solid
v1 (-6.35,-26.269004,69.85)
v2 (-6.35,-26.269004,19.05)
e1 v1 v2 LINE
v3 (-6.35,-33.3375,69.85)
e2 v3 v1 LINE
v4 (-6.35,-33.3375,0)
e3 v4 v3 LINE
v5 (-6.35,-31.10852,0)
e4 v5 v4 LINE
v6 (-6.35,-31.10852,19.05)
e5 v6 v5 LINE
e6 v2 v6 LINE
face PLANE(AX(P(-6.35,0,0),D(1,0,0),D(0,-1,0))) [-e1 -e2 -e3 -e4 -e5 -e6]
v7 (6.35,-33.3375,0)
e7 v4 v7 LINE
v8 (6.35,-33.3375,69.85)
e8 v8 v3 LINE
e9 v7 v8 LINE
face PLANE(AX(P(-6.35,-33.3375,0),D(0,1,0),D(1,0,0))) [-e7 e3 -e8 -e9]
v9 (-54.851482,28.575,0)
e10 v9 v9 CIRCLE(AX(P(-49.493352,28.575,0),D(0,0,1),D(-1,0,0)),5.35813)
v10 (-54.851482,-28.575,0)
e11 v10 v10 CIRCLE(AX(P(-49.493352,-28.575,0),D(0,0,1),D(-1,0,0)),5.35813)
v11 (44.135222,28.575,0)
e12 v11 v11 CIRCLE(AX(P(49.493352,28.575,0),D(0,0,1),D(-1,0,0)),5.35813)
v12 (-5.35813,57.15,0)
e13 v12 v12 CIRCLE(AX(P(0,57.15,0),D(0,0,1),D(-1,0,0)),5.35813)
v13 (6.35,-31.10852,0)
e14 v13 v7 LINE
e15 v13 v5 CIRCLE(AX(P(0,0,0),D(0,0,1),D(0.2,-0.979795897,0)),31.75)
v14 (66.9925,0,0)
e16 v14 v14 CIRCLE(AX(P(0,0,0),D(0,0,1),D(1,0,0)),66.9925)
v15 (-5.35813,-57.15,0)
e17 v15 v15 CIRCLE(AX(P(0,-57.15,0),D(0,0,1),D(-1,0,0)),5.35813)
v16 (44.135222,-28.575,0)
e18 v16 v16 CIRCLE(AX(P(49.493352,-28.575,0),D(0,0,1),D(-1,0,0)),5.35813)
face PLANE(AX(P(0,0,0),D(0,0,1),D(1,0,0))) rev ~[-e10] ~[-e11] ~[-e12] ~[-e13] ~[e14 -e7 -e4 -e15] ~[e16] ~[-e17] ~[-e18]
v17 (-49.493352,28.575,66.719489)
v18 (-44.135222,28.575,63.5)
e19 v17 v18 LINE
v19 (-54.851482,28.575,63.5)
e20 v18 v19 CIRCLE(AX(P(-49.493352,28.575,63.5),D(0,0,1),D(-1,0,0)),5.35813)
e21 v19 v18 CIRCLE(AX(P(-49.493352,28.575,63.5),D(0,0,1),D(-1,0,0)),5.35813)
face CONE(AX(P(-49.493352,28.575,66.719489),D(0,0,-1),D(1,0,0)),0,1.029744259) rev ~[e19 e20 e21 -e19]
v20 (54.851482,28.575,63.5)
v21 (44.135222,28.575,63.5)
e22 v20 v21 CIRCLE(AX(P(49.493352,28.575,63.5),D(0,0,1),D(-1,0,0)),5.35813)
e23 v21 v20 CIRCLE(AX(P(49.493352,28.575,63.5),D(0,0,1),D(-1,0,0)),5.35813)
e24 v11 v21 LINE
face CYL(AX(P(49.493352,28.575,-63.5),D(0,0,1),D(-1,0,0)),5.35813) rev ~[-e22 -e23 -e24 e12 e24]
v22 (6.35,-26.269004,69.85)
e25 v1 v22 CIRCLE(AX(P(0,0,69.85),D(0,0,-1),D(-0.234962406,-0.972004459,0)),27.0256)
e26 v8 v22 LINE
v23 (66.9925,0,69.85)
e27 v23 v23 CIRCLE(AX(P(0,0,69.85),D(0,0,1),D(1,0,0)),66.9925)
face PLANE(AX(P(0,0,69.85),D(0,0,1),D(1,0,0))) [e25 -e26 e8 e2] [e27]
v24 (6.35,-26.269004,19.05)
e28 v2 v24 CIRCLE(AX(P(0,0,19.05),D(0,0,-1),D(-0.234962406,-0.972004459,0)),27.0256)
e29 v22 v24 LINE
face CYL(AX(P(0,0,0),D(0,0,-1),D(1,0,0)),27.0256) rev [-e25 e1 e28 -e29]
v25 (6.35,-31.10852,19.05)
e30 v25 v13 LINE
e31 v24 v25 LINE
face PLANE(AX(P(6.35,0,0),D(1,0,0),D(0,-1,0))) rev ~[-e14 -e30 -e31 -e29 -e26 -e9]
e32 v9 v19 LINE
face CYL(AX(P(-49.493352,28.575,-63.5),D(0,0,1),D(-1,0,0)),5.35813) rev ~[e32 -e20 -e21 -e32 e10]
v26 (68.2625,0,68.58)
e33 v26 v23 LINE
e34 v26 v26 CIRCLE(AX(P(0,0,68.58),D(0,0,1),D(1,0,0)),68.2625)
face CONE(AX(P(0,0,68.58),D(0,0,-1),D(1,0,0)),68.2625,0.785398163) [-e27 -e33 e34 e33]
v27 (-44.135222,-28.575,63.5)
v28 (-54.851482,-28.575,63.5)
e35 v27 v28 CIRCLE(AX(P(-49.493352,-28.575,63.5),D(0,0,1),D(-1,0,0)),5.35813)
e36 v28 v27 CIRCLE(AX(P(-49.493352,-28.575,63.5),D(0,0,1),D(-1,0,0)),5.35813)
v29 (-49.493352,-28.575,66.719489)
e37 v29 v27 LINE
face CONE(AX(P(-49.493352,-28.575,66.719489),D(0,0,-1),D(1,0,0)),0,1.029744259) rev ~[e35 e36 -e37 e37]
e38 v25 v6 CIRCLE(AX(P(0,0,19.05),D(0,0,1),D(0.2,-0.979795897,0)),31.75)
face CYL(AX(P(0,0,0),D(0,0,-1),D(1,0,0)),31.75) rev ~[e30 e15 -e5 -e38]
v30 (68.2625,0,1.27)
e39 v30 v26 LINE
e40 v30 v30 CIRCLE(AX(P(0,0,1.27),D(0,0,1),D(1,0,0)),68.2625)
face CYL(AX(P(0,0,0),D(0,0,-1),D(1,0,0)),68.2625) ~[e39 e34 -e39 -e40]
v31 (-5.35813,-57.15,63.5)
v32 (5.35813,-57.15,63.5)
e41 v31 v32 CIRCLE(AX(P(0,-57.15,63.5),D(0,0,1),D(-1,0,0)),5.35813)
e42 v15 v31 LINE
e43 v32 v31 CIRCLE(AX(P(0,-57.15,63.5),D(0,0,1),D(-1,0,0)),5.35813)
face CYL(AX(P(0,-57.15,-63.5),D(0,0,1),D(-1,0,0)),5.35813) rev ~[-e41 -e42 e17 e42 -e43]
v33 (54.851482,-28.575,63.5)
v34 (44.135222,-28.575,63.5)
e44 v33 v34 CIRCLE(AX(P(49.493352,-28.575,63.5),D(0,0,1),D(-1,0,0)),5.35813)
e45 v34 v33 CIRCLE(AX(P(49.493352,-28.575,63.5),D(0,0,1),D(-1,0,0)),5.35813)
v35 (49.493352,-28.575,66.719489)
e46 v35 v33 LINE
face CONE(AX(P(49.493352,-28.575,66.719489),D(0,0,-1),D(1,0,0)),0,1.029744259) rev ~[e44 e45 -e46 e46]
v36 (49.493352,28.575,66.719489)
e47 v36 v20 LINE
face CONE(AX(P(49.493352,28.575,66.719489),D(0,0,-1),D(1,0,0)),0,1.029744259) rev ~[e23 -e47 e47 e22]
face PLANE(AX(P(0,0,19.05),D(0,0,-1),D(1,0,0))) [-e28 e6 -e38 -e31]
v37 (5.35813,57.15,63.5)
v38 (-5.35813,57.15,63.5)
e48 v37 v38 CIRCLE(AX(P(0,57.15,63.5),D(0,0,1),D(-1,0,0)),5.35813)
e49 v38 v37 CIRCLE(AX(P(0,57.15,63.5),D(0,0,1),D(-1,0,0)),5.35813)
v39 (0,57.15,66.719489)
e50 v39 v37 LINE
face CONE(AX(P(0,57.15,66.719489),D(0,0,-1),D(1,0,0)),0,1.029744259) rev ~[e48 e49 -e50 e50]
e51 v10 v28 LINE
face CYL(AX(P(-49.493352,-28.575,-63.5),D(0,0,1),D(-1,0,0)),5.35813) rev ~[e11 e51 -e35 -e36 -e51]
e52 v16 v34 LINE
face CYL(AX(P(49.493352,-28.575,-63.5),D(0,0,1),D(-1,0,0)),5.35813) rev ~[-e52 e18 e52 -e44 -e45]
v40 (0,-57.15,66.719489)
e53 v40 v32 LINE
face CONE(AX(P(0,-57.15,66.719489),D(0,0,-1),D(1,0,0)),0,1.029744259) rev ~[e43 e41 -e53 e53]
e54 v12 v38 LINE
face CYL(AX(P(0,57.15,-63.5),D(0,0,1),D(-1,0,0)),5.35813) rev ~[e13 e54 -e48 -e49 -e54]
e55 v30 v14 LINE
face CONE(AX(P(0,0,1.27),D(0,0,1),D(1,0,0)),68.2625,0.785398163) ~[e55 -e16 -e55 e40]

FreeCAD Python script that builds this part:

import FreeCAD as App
import Part
import Sketcher
Q = App.Units.Quantity


def edges_at(feature, points):
    """Names of the edges that pass closest to the given points."""
    edges = feature.Shape.Edges
    near = lambda p: min(range(len(edges)), key=lambda i: edges[i].distToShape(Part.Vertex(*p))[0])
    return sorted({f"Edge{near(p) + 1}" for p in points})

doc = App.newDocument("Part")
body = doc.addObject("PartDesign::Body", "Body")

sketch1 = doc.addObject("Sketcher::SketchObject", "Sketch")
body.addObject(sketch1)
sketch1.AttachmentSupport = (doc.XY_Plane, [""])
sketch1.MapMode = "FlatFace"
sketch1.addGeometry(Part.Circle(App.Vector(0, 0, 0), App.Vector(0, 0, 1), 68), False)
sketch1.addGeometry(Part.Circle(App.Vector(0, 0, 0), App.Vector(0, 0, 1), 27), False)
sketch1.addConstraint(Sketcher.Constraint("Coincident", 0, 3, -1, 1))
sketch1.addConstraint(Sketcher.Constraint("Coincident", 1, 3, -1, 1))
sketch1.addConstraint(Sketcher.Constraint("Diameter", 0, Q("5.375 in")))
sketch1.addConstraint(Sketcher.Constraint("Diameter", 1, Q("2.128 in")))
pad1 = doc.addObject("PartDesign::Pad", "Pad")
body.addObject(pad1)
pad1.Profile = sketch1
pad1.Length = Q("2.75 in")

sketch2 = doc.addObject("Sketcher::SketchObject", "Sketch001")
body.addObject(sketch2)
sketch2.AttachmentSupport = (doc.XY_Plane, [""])
sketch2.MapMode = "FlatFace"
sketch2.addGeometry(Part.Circle(App.Vector(0, 0, 0), App.Vector(0, 0, 1), 32), False)
sketch2.addConstraint(Sketcher.Constraint("Coincident", 0, 3, -1, 1))
sketch2.addConstraint(Sketcher.Constraint("Diameter", 0, Q("2.5 in")))
pocket1 = doc.addObject("PartDesign::Pocket", "Pocket")
body.addObject(pocket1)
pocket1.Profile = sketch2
pocket1.Length = Q("0.75 in")
pocket1.Reversed = True

sketch3 = doc.addObject("Sketcher::SketchObject", "Sketch002")
body.addObject(sketch3)
sketch3.AttachmentSupport = (doc.XY_Plane, [""])
sketch3.MapMode = "FlatFace"
sketch3.addGeometry(Part.LineSegment(App.Vector(-6, -33, 0), App.Vector(-6, 0, 0)), False)
sketch3.addGeometry(Part.LineSegment(App.Vector(-6, 0, 0), App.Vector(6, 0, 0)), False)
sketch3.addGeometry(Part.LineSegment(App.Vector(6, 0, 0), App.Vector(6, -33, 0)), False)
sketch3.addGeometry(Part.LineSegment(App.Vector(6, -33, 0), App.Vector(-6, -33, 0)), False)
sketch3.addConstraint(Sketcher.Constraint("Coincident", 0, 2, 1, 1))
sketch3.addConstraint(Sketcher.Constraint("Coincident", 1, 2, 2, 1))
sketch3.addConstraint(Sketcher.Constraint("Coincident", 2, 2, 3, 1))
sketch3.addConstraint(Sketcher.Constraint("Coincident", 3, 2, 0, 1))
sketch3.addConstraint(Sketcher.Constraint("Vertical", 0))
sketch3.addConstraint(Sketcher.Constraint("Horizontal", 1))
sketch3.addConstraint(Sketcher.Constraint("Vertical", 2))
sketch3.addConstraint(Sketcher.Constraint("Horizontal", 3))
sketch3.addConstraint(Sketcher.Constraint("Symmetric", 0, 2, 1, 2, -1, 1))
sketch3.addConstraint(Sketcher.Constraint("DistanceX", 1, 1, 1, 2, Q("0.5 in")))
sketch3.addConstraint(Sketcher.Constraint("DistanceY", 0, 1, 0, 2, Q("1.3125 in")))
pocket2 = doc.addObject("PartDesign::Pocket", "Pocket001")
body.addObject(pocket2)
pocket2.Profile = sketch3
pocket2.Type = "ThroughAll"
pocket2.Reversed = True
doc.recompute()

chamfer = doc.addObject("PartDesign::Chamfer", "Chamfer")
body.addObject(chamfer)
chamfer.Base = (pocket2, edges_at(pocket2, [(-68.263, 0, 69.85), (-68.263, 0, 0)]))
chamfer.Size = Q("0.05 in")

sketch4 = doc.addObject("Sketcher::SketchObject", "Sketch003")
body.addObject(sketch4)
sketch4.AttachmentSupport = (doc.XY_Plane, [""])
sketch4.MapMode = "FlatFace"
sketch4.addGeometry(Part.Circle(App.Vector(0, -57, 0), App.Vector(0, 0, 1), 5), False)
sketch4.addGeometry(Part.Circle(App.Vector(-49, -29, 0), App.Vector(0, 0, 1), 5), False)
sketch4.addGeometry(Part.Circle(App.Vector(49, -29, 0), App.Vector(0, 0, 1), 5), False)
sketch4.addGeometry(Part.Circle(App.Vector(49, 29, 0), App.Vector(0, 0, 1), 5), False)
sketch4.addGeometry(Part.Circle(App.Vector(0, 57, 0), App.Vector(0, 0, 1), 5), False)
sketch4.addGeometry(Part.Circle(App.Vector(-49, 29, 0), App.Vector(0, 0, 1), 5), False)
sketch4.addConstraint(Sketcher.Constraint("Equal", 0, 1))
sketch4.addConstraint(Sketcher.Constraint("Equal", 1, 2))
sketch4.addConstraint(Sketcher.Constraint("Equal", 2, 3))
sketch4.addConstraint(Sketcher.Constraint("Equal", 3, 4))
sketch4.addConstraint(Sketcher.Constraint("Equal", 4, 5))
sketch4.addConstraint(Sketcher.Constraint("Symmetric", 1, 3, 3, 3, -1, 1))
sketch4.addConstraint(Sketcher.Constraint("Symmetric", 0, 3, 4, 3, -1, 1))
sketch4.addConstraint(Sketcher.Constraint("Symmetric", 2, 3, 5, 3, -1, 1))
sketch4.addConstraint(Sketcher.Constraint("Symmetric", 1, 3, 2, 3, -2))
sketch4.addConstraint(Sketcher.Constraint("PointOnObject", 0, 3, -2))
sketch4.addConstraint(Sketcher.Constraint("Diameter", 0, Q("0.4219 in")))
sketch4.addConstraint(Sketcher.Constraint("DistanceY", 0, 3, 4, 3, Q("4.5 in")))
sketch4.addConstraint(Sketcher.Constraint("DistanceY", 2, 3, 3, 3, Q("2.25 in")))
sketch4.addConstraint(Sketcher.Constraint("DistanceX", 1, 3, -1, 1, 49.493352))
doc.recompute()
hole = doc.addObject("PartDesign::Hole", "Hole")
body.addObject(hole)
hole.Profile = sketch4
hole.ThreadType = "None"
hole.Diameter = Q("0.4219 in")
hole.DepthType = "Dimension"
hole.Depth = Q("2.5 in")
hole.DrillPoint = "Angled"
hole.DrillPointAngle = 118
hole.Reversed = True

doc.recompute()
